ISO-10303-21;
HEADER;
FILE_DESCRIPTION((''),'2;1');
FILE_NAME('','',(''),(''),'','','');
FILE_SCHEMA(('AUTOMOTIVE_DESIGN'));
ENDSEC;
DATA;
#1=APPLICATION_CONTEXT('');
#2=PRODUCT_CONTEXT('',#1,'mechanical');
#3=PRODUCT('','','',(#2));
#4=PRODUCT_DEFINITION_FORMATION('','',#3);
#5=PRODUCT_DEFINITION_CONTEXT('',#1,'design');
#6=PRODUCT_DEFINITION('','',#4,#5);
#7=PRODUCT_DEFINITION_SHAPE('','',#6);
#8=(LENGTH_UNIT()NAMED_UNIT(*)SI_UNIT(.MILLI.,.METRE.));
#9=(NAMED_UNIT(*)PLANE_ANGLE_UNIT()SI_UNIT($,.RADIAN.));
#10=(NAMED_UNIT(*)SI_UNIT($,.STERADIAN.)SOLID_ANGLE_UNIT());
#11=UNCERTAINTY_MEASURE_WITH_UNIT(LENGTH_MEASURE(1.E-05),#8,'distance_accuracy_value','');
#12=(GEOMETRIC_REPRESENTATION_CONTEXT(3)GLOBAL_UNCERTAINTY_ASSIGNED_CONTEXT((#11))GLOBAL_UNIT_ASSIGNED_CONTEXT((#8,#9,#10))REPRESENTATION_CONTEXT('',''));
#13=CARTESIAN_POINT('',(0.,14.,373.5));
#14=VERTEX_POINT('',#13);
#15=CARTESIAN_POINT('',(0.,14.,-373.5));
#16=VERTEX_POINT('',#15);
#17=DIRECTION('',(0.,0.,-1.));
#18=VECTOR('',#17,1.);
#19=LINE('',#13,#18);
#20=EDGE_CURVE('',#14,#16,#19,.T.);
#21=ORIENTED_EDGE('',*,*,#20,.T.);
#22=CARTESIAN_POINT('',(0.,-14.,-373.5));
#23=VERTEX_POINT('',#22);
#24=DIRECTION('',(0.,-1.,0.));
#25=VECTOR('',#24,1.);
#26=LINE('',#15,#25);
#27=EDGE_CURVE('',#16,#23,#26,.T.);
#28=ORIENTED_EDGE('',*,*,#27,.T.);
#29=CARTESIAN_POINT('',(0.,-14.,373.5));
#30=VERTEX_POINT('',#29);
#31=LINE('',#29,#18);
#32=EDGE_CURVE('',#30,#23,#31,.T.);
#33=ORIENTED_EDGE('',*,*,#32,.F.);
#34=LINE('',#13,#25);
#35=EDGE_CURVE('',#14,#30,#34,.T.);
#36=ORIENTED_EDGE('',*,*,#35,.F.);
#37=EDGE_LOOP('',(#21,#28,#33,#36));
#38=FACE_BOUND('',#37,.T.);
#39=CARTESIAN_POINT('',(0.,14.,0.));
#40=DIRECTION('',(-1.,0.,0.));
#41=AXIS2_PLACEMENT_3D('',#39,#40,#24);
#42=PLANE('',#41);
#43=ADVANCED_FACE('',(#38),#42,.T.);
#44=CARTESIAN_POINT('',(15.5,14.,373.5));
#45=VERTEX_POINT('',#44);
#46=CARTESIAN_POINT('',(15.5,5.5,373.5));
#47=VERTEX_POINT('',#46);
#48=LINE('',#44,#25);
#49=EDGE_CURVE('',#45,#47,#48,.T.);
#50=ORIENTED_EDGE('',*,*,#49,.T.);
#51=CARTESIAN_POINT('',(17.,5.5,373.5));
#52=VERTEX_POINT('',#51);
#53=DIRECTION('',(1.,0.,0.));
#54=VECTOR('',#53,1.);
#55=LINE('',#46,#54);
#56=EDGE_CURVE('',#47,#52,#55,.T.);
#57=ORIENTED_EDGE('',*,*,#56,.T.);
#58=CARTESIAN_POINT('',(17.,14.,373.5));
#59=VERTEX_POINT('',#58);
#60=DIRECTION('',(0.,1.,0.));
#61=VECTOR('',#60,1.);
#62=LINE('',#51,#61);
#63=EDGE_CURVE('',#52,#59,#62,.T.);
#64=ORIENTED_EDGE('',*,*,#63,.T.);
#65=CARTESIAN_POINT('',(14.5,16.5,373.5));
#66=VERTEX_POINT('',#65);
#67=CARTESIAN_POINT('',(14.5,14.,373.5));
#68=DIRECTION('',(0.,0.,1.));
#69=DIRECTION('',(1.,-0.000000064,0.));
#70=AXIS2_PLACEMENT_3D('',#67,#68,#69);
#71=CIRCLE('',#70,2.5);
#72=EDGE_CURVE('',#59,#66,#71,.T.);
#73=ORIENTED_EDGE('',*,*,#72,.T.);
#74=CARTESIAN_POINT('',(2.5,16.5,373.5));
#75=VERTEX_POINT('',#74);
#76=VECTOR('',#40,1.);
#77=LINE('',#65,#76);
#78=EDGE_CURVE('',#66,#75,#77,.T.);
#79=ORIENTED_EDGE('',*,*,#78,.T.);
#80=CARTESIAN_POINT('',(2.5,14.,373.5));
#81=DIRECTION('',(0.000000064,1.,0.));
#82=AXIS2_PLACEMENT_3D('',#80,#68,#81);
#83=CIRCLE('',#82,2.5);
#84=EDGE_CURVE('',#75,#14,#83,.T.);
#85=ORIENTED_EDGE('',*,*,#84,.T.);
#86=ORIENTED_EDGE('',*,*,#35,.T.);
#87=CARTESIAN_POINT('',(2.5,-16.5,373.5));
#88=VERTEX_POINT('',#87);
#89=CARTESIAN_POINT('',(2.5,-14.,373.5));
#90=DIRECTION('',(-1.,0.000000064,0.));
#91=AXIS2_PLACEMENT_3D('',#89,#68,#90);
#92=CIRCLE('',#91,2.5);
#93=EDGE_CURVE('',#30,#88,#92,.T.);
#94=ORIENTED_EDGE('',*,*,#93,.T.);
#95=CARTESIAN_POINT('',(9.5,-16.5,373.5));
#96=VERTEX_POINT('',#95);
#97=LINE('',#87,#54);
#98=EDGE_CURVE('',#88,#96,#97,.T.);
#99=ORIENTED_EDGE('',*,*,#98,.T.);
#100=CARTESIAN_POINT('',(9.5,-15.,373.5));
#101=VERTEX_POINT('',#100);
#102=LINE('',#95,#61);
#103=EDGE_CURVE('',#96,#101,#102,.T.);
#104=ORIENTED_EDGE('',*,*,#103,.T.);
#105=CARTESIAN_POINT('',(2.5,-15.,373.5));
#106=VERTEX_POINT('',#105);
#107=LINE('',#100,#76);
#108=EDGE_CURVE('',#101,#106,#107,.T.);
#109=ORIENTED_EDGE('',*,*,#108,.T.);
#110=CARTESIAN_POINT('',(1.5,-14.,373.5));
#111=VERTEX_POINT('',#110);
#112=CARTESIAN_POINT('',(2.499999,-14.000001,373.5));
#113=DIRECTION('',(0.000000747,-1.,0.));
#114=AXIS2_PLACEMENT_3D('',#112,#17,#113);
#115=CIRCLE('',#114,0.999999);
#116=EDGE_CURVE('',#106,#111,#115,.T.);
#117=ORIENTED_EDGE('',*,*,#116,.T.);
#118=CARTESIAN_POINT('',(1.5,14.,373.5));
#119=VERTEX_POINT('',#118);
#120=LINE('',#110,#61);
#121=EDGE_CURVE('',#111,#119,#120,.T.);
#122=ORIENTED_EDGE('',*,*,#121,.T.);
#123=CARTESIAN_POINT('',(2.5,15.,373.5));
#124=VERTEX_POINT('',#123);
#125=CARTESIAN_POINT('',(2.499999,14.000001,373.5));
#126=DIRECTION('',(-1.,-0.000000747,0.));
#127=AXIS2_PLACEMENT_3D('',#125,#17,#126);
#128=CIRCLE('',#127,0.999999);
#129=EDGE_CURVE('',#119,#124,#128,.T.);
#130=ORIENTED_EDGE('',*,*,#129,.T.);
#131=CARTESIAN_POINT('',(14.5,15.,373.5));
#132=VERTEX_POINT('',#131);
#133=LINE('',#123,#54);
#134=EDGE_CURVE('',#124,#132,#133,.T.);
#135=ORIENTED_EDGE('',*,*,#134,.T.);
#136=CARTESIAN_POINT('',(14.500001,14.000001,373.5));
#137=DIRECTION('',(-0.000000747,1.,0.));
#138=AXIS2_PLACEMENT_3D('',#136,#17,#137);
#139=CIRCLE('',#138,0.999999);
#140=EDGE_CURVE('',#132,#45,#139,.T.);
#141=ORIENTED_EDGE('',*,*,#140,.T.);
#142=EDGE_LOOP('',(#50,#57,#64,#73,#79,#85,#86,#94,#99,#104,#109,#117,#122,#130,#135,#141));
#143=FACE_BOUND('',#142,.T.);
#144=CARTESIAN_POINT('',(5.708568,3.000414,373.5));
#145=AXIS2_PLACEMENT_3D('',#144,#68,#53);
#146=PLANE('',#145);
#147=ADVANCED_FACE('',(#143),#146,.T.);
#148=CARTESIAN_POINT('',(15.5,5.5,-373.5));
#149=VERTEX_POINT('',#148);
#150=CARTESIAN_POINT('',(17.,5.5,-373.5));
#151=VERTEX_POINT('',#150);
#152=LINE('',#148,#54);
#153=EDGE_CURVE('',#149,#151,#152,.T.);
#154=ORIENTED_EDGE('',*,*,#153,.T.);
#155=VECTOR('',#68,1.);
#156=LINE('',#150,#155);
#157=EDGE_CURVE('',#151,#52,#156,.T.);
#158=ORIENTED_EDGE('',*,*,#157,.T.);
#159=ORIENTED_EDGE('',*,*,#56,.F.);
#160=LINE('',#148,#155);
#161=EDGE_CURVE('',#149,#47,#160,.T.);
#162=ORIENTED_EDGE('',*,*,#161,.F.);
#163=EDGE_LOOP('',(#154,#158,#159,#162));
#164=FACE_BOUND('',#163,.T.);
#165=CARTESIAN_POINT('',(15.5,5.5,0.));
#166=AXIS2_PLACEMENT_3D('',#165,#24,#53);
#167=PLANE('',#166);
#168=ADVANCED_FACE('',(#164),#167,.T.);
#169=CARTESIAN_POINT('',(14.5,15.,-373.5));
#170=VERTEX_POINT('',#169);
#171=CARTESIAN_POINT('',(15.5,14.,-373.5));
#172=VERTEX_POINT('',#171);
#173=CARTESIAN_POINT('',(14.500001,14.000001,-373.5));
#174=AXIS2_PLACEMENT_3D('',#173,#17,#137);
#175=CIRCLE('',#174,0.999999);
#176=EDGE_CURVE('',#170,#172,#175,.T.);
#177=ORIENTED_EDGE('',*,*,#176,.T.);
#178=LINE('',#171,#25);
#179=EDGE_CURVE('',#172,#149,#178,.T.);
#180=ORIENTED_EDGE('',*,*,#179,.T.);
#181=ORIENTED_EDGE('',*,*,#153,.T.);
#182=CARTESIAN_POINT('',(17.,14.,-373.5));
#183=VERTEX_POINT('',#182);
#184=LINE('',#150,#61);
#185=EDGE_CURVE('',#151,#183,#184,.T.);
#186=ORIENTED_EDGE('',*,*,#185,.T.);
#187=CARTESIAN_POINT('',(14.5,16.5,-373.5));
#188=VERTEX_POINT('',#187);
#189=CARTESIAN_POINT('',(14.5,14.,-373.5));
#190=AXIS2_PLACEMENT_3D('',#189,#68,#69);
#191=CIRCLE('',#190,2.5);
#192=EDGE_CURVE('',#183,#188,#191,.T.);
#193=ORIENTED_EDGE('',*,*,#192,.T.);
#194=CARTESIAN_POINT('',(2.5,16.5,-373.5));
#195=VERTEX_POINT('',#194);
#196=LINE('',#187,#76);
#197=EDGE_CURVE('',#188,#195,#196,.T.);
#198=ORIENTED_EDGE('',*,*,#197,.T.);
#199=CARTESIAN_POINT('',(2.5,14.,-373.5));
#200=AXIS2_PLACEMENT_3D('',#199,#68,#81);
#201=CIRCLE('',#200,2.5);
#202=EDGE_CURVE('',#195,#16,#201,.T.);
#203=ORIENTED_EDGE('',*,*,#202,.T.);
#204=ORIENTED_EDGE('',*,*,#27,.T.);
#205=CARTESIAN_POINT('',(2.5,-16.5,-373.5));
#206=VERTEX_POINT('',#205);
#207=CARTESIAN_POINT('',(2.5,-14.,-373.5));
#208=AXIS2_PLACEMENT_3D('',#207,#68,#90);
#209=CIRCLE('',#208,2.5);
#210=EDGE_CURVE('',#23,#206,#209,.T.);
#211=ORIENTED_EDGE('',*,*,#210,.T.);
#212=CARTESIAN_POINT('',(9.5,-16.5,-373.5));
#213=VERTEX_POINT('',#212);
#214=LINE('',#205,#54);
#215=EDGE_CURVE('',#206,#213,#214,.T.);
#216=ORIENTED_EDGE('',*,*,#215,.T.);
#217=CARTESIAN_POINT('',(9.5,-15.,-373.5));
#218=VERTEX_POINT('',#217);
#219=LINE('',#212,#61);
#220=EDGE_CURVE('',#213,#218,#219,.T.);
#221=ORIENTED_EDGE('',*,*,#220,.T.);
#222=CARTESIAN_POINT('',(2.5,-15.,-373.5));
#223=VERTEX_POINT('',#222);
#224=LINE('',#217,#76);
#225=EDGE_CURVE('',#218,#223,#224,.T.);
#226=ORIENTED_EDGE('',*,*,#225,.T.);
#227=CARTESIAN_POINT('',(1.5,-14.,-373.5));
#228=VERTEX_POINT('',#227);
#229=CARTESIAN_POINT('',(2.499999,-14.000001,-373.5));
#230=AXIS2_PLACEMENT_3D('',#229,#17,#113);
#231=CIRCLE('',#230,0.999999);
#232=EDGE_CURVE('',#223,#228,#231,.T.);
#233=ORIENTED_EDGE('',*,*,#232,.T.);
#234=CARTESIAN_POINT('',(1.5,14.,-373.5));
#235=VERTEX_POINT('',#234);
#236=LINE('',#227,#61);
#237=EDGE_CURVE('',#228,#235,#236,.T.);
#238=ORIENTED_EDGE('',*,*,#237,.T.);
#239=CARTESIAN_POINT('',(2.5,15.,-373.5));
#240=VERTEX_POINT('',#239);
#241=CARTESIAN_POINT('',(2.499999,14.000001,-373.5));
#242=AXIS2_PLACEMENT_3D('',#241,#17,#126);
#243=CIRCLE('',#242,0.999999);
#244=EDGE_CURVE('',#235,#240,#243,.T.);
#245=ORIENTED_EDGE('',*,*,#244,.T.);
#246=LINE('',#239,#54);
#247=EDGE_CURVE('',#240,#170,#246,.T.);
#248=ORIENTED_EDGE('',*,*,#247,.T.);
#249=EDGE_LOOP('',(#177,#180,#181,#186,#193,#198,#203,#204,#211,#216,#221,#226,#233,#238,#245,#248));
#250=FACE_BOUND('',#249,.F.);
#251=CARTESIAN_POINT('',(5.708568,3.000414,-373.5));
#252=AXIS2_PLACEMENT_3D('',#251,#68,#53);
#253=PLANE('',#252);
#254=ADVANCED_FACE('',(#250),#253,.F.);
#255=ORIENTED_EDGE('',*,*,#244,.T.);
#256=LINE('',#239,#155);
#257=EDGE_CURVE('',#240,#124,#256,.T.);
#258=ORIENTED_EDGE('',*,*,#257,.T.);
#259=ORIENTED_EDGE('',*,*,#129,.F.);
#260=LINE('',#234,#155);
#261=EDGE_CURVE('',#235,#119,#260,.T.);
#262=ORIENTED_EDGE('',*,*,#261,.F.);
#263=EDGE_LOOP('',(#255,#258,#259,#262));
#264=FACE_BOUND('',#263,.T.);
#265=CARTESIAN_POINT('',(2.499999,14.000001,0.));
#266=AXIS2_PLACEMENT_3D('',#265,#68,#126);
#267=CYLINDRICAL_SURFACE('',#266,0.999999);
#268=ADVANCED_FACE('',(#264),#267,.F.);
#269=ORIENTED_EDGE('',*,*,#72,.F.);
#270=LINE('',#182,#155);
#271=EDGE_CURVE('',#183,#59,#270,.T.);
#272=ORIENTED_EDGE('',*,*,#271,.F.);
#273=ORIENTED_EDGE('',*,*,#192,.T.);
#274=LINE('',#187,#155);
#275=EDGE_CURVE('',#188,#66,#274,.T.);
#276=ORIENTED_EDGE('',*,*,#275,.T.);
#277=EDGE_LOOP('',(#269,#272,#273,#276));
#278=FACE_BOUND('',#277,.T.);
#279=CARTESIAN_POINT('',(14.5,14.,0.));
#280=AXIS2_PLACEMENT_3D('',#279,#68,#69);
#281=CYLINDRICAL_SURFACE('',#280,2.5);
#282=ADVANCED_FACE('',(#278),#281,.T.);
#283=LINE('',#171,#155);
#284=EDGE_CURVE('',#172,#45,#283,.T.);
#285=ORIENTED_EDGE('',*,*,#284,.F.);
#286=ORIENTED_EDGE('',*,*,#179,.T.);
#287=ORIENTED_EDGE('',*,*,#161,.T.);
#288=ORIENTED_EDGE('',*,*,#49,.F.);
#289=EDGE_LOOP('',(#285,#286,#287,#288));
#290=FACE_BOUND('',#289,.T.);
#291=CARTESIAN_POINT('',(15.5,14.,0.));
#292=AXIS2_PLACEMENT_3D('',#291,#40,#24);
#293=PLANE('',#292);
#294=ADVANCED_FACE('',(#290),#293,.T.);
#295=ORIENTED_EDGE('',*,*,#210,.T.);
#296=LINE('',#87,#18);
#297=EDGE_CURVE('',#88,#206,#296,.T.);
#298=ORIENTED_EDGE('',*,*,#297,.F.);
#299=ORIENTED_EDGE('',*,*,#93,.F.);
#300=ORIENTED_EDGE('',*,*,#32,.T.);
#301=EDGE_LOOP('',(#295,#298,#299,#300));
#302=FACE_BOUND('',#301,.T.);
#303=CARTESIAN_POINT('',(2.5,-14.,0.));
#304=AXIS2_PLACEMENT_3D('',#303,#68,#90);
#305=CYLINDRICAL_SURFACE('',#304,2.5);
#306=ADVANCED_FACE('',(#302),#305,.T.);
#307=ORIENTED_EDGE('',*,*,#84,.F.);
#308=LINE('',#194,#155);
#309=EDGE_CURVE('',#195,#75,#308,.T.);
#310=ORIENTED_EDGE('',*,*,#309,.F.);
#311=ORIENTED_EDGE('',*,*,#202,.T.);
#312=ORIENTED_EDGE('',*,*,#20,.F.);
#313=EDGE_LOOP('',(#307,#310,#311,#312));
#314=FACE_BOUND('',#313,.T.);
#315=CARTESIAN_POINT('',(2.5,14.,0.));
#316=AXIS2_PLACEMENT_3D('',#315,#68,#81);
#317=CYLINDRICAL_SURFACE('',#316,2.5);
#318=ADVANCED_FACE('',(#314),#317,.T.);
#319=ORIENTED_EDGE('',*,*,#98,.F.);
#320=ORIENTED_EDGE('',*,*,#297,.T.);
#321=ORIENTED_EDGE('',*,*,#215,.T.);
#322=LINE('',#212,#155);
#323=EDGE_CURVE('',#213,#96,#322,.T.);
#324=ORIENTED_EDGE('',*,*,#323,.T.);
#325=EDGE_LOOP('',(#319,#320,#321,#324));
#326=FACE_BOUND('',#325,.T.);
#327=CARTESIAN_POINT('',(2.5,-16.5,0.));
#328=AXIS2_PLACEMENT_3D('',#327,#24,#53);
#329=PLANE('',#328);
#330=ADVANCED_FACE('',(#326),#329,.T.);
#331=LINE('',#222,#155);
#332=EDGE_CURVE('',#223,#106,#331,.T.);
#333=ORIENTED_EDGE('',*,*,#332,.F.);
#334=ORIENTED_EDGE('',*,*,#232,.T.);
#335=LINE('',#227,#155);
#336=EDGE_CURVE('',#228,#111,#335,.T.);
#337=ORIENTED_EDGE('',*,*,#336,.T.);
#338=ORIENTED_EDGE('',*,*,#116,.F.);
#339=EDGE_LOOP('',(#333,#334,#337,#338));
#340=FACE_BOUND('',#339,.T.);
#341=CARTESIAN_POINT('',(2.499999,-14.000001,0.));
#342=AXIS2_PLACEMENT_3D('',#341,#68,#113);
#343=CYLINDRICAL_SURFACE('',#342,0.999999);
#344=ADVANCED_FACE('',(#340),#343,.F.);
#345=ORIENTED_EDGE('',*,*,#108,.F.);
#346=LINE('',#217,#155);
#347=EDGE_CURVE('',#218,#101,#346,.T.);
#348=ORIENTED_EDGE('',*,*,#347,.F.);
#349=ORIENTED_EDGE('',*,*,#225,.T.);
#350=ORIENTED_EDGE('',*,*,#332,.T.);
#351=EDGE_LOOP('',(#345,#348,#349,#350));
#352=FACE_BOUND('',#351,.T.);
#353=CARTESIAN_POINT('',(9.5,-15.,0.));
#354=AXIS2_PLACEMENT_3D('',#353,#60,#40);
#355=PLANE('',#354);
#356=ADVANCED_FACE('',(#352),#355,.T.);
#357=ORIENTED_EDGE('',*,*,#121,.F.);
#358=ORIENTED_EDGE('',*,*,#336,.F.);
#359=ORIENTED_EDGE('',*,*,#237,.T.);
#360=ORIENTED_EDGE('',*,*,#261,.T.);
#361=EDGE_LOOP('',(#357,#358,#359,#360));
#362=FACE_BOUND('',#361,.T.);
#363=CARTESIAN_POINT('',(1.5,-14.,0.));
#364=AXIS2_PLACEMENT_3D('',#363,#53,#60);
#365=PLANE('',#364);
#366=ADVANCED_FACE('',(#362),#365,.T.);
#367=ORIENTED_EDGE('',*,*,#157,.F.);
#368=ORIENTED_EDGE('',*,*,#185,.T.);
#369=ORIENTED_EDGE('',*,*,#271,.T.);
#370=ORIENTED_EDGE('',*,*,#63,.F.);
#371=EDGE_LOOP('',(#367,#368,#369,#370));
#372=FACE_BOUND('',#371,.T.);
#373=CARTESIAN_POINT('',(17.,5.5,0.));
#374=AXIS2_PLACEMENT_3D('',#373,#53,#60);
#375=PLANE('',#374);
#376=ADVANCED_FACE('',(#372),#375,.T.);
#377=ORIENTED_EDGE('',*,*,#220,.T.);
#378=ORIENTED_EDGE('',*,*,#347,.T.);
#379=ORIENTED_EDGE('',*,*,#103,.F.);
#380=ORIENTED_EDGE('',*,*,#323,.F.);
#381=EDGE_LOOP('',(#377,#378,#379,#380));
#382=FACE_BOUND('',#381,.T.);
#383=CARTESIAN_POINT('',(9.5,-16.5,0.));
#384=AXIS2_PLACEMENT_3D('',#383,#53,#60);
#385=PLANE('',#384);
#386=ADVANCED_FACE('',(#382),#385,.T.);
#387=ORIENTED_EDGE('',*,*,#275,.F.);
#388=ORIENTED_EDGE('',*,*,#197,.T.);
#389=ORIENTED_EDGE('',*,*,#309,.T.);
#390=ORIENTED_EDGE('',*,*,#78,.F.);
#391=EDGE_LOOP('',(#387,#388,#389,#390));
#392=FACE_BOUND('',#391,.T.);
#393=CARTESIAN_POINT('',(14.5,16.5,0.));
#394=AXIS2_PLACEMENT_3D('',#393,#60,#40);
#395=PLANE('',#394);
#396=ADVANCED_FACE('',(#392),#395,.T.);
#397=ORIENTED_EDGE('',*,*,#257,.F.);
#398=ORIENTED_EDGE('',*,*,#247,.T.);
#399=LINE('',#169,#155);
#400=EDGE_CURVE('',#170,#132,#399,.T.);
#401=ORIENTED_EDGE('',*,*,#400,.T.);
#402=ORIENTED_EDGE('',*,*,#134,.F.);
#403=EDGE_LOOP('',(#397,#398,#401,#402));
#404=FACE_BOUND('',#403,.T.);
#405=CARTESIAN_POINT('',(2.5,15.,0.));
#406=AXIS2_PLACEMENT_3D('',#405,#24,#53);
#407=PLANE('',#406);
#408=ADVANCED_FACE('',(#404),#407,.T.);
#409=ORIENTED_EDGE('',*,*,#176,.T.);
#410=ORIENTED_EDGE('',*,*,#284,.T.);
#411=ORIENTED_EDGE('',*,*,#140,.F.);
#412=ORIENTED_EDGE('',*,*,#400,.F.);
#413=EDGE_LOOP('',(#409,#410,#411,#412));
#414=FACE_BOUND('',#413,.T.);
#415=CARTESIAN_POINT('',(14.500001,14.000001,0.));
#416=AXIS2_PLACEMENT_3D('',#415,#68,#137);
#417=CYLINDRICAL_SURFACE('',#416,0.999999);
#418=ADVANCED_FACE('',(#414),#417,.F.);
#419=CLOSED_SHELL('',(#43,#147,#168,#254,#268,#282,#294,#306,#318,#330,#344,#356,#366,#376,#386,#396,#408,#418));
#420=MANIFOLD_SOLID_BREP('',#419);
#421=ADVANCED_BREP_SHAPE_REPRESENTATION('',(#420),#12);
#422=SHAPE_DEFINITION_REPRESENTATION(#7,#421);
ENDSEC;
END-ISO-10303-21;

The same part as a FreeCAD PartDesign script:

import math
import FreeCAD as App
import Part
import Sketcher

doc = App.newDocument("Part")
body = doc.addObject("PartDesign::Body", "Body")

# Sketch on XY plane
sketch1 = body.newObject("Sketcher::SketchObject", "Sketch")
sketch1.AttachmentSupport = (doc.getObject("XY_Plane"), [""])
sketch1.MapMode = "FlatFace"
sketch1.addGeometry([
    Part.LineSegment(App.Vector(2.5, -16.5, 0), App.Vector(9.5, -16.5, 0)),  # 0
    Part.LineSegment(App.Vector(9.5, -16.5, 0), App.Vector(9.5, -15, 0)),  # 1
    Part.LineSegment(App.Vector(9.5, -15, 0), App.Vector(2.5, -15, 0)),  # 2
    Part.ArcOfCircle(Part.Circle(App.Vector(2.5, -14, 0), App.Vector(0, 0, 1), 1), math.radians(180), math.radians(270)),  # 3
    Part.LineSegment(App.Vector(1.5, -14, 0), App.Vector(1.5, 14, 0)),  # 4
    Part.ArcOfCircle(Part.Circle(App.Vector(2.5, 14, 0), App.Vector(0, 0, 1), 1), math.radians(90), math.radians(180)),  # 5
    Part.LineSegment(App.Vector(2.5, 15, 0), App.Vector(14.5, 15, 0)),  # 6
    Part.ArcOfCircle(Part.Circle(App.Vector(14.5, 14, 0), App.Vector(0, 0, 1), 1), math.radians(0), math.radians(90)),  # 7
    Part.LineSegment(App.Vector(15.5, 14, 0), App.Vector(15.5, 5.5, 0)),  # 8
    Part.LineSegment(App.Vector(15.5, 5.5, 0), App.Vector(17, 5.5, 0)),  # 9
    Part.LineSegment(App.Vector(17, 5.5, 0), App.Vector(17, 14, 0)),  # 10
    Part.ArcOfCircle(Part.Circle(App.Vector(14.5, 14, 0), App.Vector(0, 0, 1), 2.5), math.radians(0), math.radians(90)),  # 11
    Part.LineSegment(App.Vector(14.5, 16.5, 0), App.Vector(2.5, 16.5, 0)),  # 12
    Part.ArcOfCircle(Part.Circle(App.Vector(2.5, 14, 0), App.Vector(0, 0, 1), 2.5), math.radians(90), math.radians(180)),  # 13
    Part.LineSegment(App.Vector(0, 14, 0), App.Vector(0, -14, 0)),  # 14
    Part.ArcOfCircle(Part.Circle(App.Vector(2.5, -14, 0), App.Vector(0, 0, 1), 2.5), math.radians(180), math.radians(270)),  # 15
], False)
sketch1.addConstraint([
    Sketcher.Constraint("Coincident", 0, 2, 1, 1),
    Sketcher.Constraint("Coincident", 1, 2, 2, 1),
    Sketcher.Constraint("Tangent", 2, 2, 3, 2),
    Sketcher.Constraint("Tangent", 3, 1, 4, 1),
    Sketcher.Constraint("Tangent", 4, 2, 5, 2),
    Sketcher.Constraint("Tangent", 5, 1, 6, 1),
    Sketcher.Constraint("Tangent", 6, 2, 7, 2),
    Sketcher.Constraint("Tangent", 7, 1, 8, 1),
    Sketcher.Constraint("Coincident", 8, 2, 9, 1),
    Sketcher.Constraint("Coincident", 9, 2, 10, 1),
    Sketcher.Constraint("Tangent", 10, 2, 11, 1),
    Sketcher.Constraint("Tangent", 11, 2, 12, 1),
    Sketcher.Constraint("Tangent", 12, 2, 13, 1),
    Sketcher.Constraint("Tangent", 13, 2, 14, 1),
    Sketcher.Constraint("Tangent", 14, 2, 15, 1),
    Sketcher.Constraint("Tangent", 15, 2, 0, 1),
    Sketcher.Constraint("Horizontal", 0),
    Sketcher.Constraint("Vertical", 1),
    Sketcher.Constraint("Horizontal", 2),
    Sketcher.Constraint("Vertical", 4),
    Sketcher.Constraint("Horizontal", 6),
    Sketcher.Constraint("Vertical", 8),
    Sketcher.Constraint("Horizontal", 9),
    Sketcher.Constraint("Vertical", 10),
    Sketcher.Constraint("Horizontal", 12),
    Sketcher.Constraint("Vertical", 14),
    Sketcher.Constraint("Coincident", 11, 3, 7, 3),
    Sketcher.Constraint("Coincident", 13, 3, 5, 3),
    Sketcher.Constraint("Coincident", 15, 3, 3, 3),
    Sketcher.Constraint("Equal", 3, 5),
    Sketcher.Constraint("Equal", 5, 7),
    Sketcher.Constraint("Symmetric", 13, 2, 14, 2, -1, 1),
    Sketcher.Constraint("Radius", 3, 0.999999),
    Sketcher.Constraint("Radius", 11, 2.5),
    Sketcher.Constraint("DistanceX", 0, 1, 0, 2, 7.0),
    Sketcher.Constraint("DistanceX", 6, 1, 6, 2, 12.0),
    Sketcher.Constraint("DistanceY", 4, 1, 4, 2, 28.0),
    Sketcher.Constraint("DistanceY", 8, 2, 8, 1, 8.5),
])
pad1 = body.newObject("PartDesign::Pad", "Pad")
pad1.Profile = sketch1
pad1.Length = 747
pad1.Midplane = True

doc.recompute()
